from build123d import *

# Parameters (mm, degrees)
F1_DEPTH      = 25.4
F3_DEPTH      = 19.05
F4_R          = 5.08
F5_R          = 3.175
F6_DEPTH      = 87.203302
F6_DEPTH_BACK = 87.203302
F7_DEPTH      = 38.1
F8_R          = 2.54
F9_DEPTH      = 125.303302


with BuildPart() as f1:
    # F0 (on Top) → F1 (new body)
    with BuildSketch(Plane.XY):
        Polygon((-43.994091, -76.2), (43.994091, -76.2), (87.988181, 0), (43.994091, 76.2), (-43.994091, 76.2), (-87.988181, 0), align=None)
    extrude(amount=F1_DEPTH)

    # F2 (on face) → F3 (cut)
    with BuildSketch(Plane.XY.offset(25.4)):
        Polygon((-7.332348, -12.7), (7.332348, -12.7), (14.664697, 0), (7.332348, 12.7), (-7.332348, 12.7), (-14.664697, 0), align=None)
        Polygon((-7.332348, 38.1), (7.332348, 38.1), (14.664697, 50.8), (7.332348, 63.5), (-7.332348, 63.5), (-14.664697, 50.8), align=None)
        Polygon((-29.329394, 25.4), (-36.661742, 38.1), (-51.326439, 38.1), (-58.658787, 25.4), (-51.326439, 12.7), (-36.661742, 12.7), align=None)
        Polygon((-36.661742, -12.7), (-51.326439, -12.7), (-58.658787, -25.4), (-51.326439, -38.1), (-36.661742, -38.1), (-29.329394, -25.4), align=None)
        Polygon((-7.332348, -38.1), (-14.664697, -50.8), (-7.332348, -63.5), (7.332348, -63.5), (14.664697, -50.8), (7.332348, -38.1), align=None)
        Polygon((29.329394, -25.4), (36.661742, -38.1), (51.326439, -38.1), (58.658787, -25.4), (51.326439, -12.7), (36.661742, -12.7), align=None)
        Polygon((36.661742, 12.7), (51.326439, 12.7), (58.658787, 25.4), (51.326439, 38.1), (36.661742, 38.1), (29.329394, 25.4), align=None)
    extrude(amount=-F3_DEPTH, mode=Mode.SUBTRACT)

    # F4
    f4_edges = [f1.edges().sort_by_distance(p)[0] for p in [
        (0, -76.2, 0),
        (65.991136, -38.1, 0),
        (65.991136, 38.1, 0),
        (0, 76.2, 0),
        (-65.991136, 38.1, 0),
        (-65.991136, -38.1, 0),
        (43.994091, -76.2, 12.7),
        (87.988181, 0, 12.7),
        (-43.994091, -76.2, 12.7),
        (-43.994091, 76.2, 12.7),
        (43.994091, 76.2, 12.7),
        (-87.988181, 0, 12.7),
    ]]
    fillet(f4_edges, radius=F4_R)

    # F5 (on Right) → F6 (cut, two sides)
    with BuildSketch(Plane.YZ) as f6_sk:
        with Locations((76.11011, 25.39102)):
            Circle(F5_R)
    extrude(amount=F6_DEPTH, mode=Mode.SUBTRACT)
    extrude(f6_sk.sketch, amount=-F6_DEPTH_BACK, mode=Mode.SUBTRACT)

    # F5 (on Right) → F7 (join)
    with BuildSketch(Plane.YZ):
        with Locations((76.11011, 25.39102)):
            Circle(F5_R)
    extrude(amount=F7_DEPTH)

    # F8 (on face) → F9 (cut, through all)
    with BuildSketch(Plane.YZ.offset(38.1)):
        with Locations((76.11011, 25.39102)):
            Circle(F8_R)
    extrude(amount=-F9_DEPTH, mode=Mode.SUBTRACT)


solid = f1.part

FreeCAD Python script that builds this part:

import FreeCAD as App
import Part
import Sketcher
Q = App.Units.Quantity


def edges_at(feature, points):
    """Names of the edges that pass closest to the given points."""
    edges = feature.Shape.Edges
    near = lambda p: min(range(len(edges)), key=lambda i: edges[i].distToShape(Part.Vertex(*p))[0])
    return sorted({f"Edge{near(p) + 1}" for p in points})


def add_polygon(sketch, points):
    """Adds a closed chain of lines whose ends are joined by coincident constraints."""
    first, n = sketch.GeometryCount, len(points)
    for a, b in zip(points, points[1:] + points[:1]):
        sketch.addGeometry(Part.LineSegment(App.Vector(*a, 0), App.Vector(*b, 0)), False)
    for i in range(n):
        sketch.addConstraint(Sketcher.Constraint("Coincident", first + i, 2, first + (i + 1) % n, 1))

doc = App.newDocument("Part")
body = doc.addObject("PartDesign::Body", "Body")

# Sketch on XY plane
sketch1 = body.newObject("Sketcher::SketchObject", "Sketch")
sketch1.AttachmentSupport = (doc.getObject("XY_Plane"), [""])
sketch1.MapMode = "FlatFace"
add_polygon(sketch1, [(-44, -76), (44, -76), (88, 0), (44, 76), (-44, 76), (-88, 0)])  # lines 0-5
sketch1.addConstraint(Sketcher.Constraint("Horizontal", 0))
sketch1.addConstraint(Sketcher.Constraint("Horizontal", 3))
sketch1.addConstraint(Sketcher.Constraint("Symmetric", 0, 2, 3, 2, -1, 1))
sketch1.addConstraint(Sketcher.Constraint("Symmetric", 1, 2, 4, 2, -1, 1))
sketch1.addConstraint(Sketcher.Constraint("PointOnObject", 1, 2, -1))
sketch1.addConstraint(Sketcher.Constraint("Parallel", 2, 5))
sketch1.addConstraint(Sketcher.Constraint("Vertical", 0, 2, 2, 2))
sketch1.addConstraint(Sketcher.Constraint("DistanceY", 0, 2, -1, 1, Q("3 in")))
sketch1.addConstraint(Sketcher.Constraint("Angle", 1, Q("60 deg")))
sketch1.addConstraint(Sketcher.Constraint("DistanceX", 0, 1, 0, 2, Q("87.988182 mm")))
pad1 = body.newObject("PartDesign::Pad", "Pad")
pad1.Profile = sketch1
pad1.Length = Q("1 in")

# Sketch on XY plane
sketch2 = body.newObject("Sketcher::SketchObject", "Sketch001")
sketch2.AttachmentSupport = (doc.getObject("XY_Plane"), [""])
sketch2.MapMode = "FlatFace"
sketch2.AttachmentOffset = App.Placement(App.Vector(0, 0, 1 * 25.4), App.Rotation())
add_polygon(sketch2, [(-7, -13), (7, -13), (15, 0), (7, 13), (-7, 13), (-15, 0)])  # lines 0-5
add_polygon(sketch2, [(-7, 38), (7, 38), (15, 51), (7, 64), (-7, 64), (-15, 51)])  # lines 6-11
add_polygon(sketch2, [(-29, 25), (-37, 38), (-51, 38), (-59, 25), (-51, 13), (-37, 13)])  # lines 12-17
add_polygon(sketch2, [(-37, -13), (-51, -13), (-59, -25), (-51, -38), (-37, -38), (-29, -25)])  # lines 18-23
add_polygon(sketch2, [(-7, -38), (-15, -51), (-7, -64), (7, -64), (15, -51), (7, -38)])  # lines 24-29
add_polygon(sketch2, [(29, -25), (37, -38), (51, -38), (59, -25), (51, -13), (37, -13)])  # lines 30-35
add_polygon(sketch2, [(37, 13), (51, 13), (59, 25), (51, 38), (37, 38), (29, 25)])  # lines 36-41
sketch2.addConstraint(Sketcher.Constraint("Horizontal", 0))
sketch2.addConstraint(Sketcher.Constraint("Horizontal", 3))
sketch2.addConstraint(Sketcher.Constraint("Horizontal", 6))
sketch2.addConstraint(Sketcher.Constraint("Horizontal", 9))
sketch2.addConstraint(Sketcher.Constraint("Horizontal", 13))
sketch2.addConstraint(Sketcher.Constraint("Horizontal", 16))
sketch2.addConstraint(Sketcher.Constraint("Horizontal", 18))
sketch2.addConstraint(Sketcher.Constraint("Horizontal", 21))
sketch2.addConstraint(Sketcher.Constraint("Horizontal", 26))
sketch2.addConstraint(Sketcher.Constraint("Horizontal", 29))
sketch2.addConstraint(Sketcher.Constraint("Horizontal", 31))
sketch2.addConstraint(Sketcher.Constraint("Horizontal", 34))
sketch2.addConstraint(Sketcher.Constraint("Horizontal", 36))
sketch2.addConstraint(Sketcher.Constraint("Horizontal", 39))
sketch2.addConstraint(Sketcher.Constraint("Symmetric", 0, 2, 3, 2, -1, 1))
sketch2.addConstraint(Sketcher.Constraint("Symmetric", 1, 2, 4, 2, -1, 1))
sketch2.addConstraint(Sketcher.Constraint("Symmetric", 7, 2, 24, 2, -1, 1))
sketch2.addConstraint(Sketcher.Constraint("Symmetric", 8, 2, 25, 2, -1, 1))
sketch2.addConstraint(Sketcher.Constraint("Symmetric", 10, 2, 27, 2, -1, 1))
sketch2.addConstraint(Sketcher.Constraint("Symmetric", 11, 2, 28, 2, -1, 1))
sketch2.addConstraint(Sketcher.Constraint("Symmetric", 12, 2, 30, 2, -1, 1))
sketch2.addConstraint(Sketcher.Constraint("Symmetric", 14, 2, 32, 2, -1, 1))
sketch2.addConstraint(Sketcher.Constraint("Symmetric", 15, 2, 33, 2, -1, 1))
sketch2.addConstraint(Sketcher.Constraint("Symmetric", 17, 2, 35, 2, -1, 1))
sketch2.addConstraint(Sketcher.Constraint("Symmetric", 18, 2, 36, 2, -1, 1))
sketch2.addConstraint(Sketcher.Constraint("Symmetric", 19, 2, 37, 2, -1, 1))
sketch2.addConstraint(Sketcher.Constraint("Symmetric", 20, 2, 38, 2, -1, 1))
sketch2.addConstraint(Sketcher.Constraint("Symmetric", 22, 2, 40, 2, -1, 1))
sketch2.addConstraint(Sketcher.Constraint("Symmetric", 7, 2, 10, 2, -2))
sketch2.addConstraint(Sketcher.Constraint("Symmetric", 21, 2, 30, 2, -2))
sketch2.addConstraint(Sketcher.Constraint("Symmetric", 19, 2, 32, 2, -2))
sketch2.addConstraint(Sketcher.Constraint("Symmetric", 18, 2, 33, 2, -2))
sketch2.addConstraint(Sketcher.Constraint("Symmetric", 22, 2, 35, 2, -2))
sketch2.addConstraint(Sketcher.Constraint("PointOnObject", 1, 2, -1))
sketch2.addConstraint(Sketcher.Constraint("Parallel", 2, 5))
sketch2.addConstraint(Sketcher.Constraint("Parallel", 4, 7))
sketch2.addConstraint(Sketcher.Constraint("Parallel", 5, 8))
sketch2.addConstraint(Sketcher.Constraint("Parallel", 7, 10))
sketch2.addConstraint(Sketcher.Constraint("Parallel", 8, 11))
sketch2.addConstraint(Sketcher.Constraint("Parallel", 11, 12))
sketch2.addConstraint(Sketcher.Constraint("Parallel", 10, 14))
sketch2.addConstraint(Sketcher.Constraint("Parallel", 12, 15))
sketch2.addConstraint(Sketcher.Constraint("Parallel", 14, 17))
sketch2.addConstraint(Sketcher.Constraint("Parallel", 17, 19))
sketch2.addConstraint(Sketcher.Constraint("Parallel", 15, 20))
sketch2.addConstraint(Sketcher.Constraint("Parallel", 20, 23))
sketch2.addConstraint(Sketcher.Constraint("Parallel", 22, 24))
sketch2.addConstraint(Sketcher.Constraint("Parallel", 24, 27))
sketch2.addConstraint(Sketcher.Constraint("Parallel", 27, 32))
sketch2.addConstraint(Sketcher.Constraint("Parallel", 32, 35))
sketch2.addConstraint(Sketcher.Constraint("Parallel", 37, 40))
sketch2.addConstraint(Sketcher.Constraint("Parallel", 38, 41))
sketch2.addConstraint(Sketcher.Constraint("Horizontal", 11, 2, 12, 2))
sketch2.addConstraint(Sketcher.Constraint("Horizontal", 3, 2, 15, 2))
sketch2.addConstraint(Sketcher.Constraint("Horizontal", 14, 2, 17, 2))
sketch2.addConstraint(Sketcher.Constraint("Vertical", 2, 2, 6, 2))
sketch2.addConstraint(Sketcher.Constraint("Vertical", 1, 2, 7, 2))
sketch2.addConstraint(Sketcher.Constraint("Vertical", 6, 2, 8, 2))
sketch2.addConstraint(Sketcher.Constraint("Vertical", 13, 2, 15, 2))
sketch2.addConstraint(Sketcher.Constraint("Equal", 9, 13))
sketch2.addConstraint(Sketcher.Constraint("Equal", 11, 12))
sketch2.addConstraint(Sketcher.Constraint("DistanceY", -1, 1, 7, 2, Q("2 in")))
sketch2.addConstraint(Sketcher.Constraint("Angle", 1, Q("59.999998 deg")))
sketch2.addConstraint(Sketcher.Constraint("DistanceX", 0, 1, 0, 2, Q("14.664696 mm")))
sketch2.addConstraint(Sketcher.Constraint("DistanceX", 12, 2, -1, 1, Q("36.661742 mm")))
pocket1 = body.newObject("PartDesign::Pocket", "Pocket")
pocket1.Profile = sketch2
pocket1.Length = Q("0.75 in")
doc.recompute()

fillet = body.newObject("PartDesign::Fillet", "Fillet")
fillet.Base = (pocket1, edges_at(pocket1, [
    (0, -76.2, 0),
    (65.991, -38.1, 0),
    (65.991, 38.1, 0),
    (0, 76.2, 0),
    (-65.991, 38.1, 0),
    (-65.991, -38.1, 0),
    (43.994, -76.2, 12.7),
    (87.988, 0, 12.7),
    (-43.994, -76.2, 12.7),
    (-43.994, 76.2, 12.7),
    (43.994, 76.2, 12.7),
    (-87.988, 0, 12.7),
]))
fillet.Radius = Q("0.2 in")

# Sketch on YZ plane
sketch3 = body.newObject("Sketcher::SketchObject", "Sketch002")
sketch3.AttachmentSupport = (doc.getObject("YZ_Plane"), [""])
sketch3.MapMode = "FlatFace"
sketch3.addGeometry(Part.Circle(App.Vector(76.1, 25.4, 0), App.Vector(0, 0, 1), 3.2), False)
sketch3.addConstraint(Sketcher.Constraint("Diameter", 0, Q("0.25 in")))
sketch3.addConstraint(Sketcher.Constraint("DistanceX", -1, 1, 0, 3, Q("76.11011 mm")))
sketch3.addConstraint(Sketcher.Constraint("DistanceY", -1, 1, 0, 3, Q("25.39102 mm")))
pocket2 = body.newObject("PartDesign::Pocket", "Pocket001")
pocket2.Profile = sketch3
pocket2.Type = "ThroughAll"
pocket2.Midplane = True

# Sketch on YZ plane
sketch4 = body.newObject("Sketcher::SketchObject", "Sketch003")
sketch4.AttachmentSupport = (doc.getObject("YZ_Plane"), [""])
sketch4.MapMode = "FlatFace"
sketch4.addGeometry(Part.Circle(App.Vector(76.1, 25.4, 0), App.Vector(0, 0, 1), 3.2), False)
sketch4.addConstraint(Sketcher.Constraint("Diameter", 0, Q("0.25 in")))
sketch4.addConstraint(Sketcher.Constraint("DistanceX", -1, 1, 0, 3, Q("76.11011 mm")))
sketch4.addConstraint(Sketcher.Constraint("DistanceY", -1, 1, 0, 3, Q("25.39102 mm")))
pad2 = body.newObject("PartDesign::Pad", "Pad001")
pad2.Profile = sketch4
pad2.Length = Q("1.5 in")

# Sketch on YZ plane
sketch5 = body.newObject("Sketcher::SketchObject", "Sketch004")
sketch5.AttachmentSupport = (doc.getObject("YZ_Plane"), [""])
sketch5.MapMode = "FlatFace"
sketch5.AttachmentOffset = App.Placement(App.Vector(0, 0, 1.5 * 25.4), App.Rotation())
sketch5.addGeometry(Part.Circle(App.Vector(76.1, 25.4, 0), App.Vector(0, 0, 1), 2.5), False)
sketch5.addConstraint(Sketcher.Constraint("Diameter", 0, Q("0.2 in")))
sketch5.addConstraint(Sketcher.Constraint("DistanceX", -1, 1, 0, 3, Q("76.11011 mm")))
sketch5.addConstraint(Sketcher.Constraint("DistanceY", -1, 1, 0, 3, Q("25.39102 mm")))
pocket3 = body.newObject("PartDesign::Pocket", "Pocket002")
pocket3.Profile = sketch5
pocket3.Type = "ThroughAll"

doc.recompute()
